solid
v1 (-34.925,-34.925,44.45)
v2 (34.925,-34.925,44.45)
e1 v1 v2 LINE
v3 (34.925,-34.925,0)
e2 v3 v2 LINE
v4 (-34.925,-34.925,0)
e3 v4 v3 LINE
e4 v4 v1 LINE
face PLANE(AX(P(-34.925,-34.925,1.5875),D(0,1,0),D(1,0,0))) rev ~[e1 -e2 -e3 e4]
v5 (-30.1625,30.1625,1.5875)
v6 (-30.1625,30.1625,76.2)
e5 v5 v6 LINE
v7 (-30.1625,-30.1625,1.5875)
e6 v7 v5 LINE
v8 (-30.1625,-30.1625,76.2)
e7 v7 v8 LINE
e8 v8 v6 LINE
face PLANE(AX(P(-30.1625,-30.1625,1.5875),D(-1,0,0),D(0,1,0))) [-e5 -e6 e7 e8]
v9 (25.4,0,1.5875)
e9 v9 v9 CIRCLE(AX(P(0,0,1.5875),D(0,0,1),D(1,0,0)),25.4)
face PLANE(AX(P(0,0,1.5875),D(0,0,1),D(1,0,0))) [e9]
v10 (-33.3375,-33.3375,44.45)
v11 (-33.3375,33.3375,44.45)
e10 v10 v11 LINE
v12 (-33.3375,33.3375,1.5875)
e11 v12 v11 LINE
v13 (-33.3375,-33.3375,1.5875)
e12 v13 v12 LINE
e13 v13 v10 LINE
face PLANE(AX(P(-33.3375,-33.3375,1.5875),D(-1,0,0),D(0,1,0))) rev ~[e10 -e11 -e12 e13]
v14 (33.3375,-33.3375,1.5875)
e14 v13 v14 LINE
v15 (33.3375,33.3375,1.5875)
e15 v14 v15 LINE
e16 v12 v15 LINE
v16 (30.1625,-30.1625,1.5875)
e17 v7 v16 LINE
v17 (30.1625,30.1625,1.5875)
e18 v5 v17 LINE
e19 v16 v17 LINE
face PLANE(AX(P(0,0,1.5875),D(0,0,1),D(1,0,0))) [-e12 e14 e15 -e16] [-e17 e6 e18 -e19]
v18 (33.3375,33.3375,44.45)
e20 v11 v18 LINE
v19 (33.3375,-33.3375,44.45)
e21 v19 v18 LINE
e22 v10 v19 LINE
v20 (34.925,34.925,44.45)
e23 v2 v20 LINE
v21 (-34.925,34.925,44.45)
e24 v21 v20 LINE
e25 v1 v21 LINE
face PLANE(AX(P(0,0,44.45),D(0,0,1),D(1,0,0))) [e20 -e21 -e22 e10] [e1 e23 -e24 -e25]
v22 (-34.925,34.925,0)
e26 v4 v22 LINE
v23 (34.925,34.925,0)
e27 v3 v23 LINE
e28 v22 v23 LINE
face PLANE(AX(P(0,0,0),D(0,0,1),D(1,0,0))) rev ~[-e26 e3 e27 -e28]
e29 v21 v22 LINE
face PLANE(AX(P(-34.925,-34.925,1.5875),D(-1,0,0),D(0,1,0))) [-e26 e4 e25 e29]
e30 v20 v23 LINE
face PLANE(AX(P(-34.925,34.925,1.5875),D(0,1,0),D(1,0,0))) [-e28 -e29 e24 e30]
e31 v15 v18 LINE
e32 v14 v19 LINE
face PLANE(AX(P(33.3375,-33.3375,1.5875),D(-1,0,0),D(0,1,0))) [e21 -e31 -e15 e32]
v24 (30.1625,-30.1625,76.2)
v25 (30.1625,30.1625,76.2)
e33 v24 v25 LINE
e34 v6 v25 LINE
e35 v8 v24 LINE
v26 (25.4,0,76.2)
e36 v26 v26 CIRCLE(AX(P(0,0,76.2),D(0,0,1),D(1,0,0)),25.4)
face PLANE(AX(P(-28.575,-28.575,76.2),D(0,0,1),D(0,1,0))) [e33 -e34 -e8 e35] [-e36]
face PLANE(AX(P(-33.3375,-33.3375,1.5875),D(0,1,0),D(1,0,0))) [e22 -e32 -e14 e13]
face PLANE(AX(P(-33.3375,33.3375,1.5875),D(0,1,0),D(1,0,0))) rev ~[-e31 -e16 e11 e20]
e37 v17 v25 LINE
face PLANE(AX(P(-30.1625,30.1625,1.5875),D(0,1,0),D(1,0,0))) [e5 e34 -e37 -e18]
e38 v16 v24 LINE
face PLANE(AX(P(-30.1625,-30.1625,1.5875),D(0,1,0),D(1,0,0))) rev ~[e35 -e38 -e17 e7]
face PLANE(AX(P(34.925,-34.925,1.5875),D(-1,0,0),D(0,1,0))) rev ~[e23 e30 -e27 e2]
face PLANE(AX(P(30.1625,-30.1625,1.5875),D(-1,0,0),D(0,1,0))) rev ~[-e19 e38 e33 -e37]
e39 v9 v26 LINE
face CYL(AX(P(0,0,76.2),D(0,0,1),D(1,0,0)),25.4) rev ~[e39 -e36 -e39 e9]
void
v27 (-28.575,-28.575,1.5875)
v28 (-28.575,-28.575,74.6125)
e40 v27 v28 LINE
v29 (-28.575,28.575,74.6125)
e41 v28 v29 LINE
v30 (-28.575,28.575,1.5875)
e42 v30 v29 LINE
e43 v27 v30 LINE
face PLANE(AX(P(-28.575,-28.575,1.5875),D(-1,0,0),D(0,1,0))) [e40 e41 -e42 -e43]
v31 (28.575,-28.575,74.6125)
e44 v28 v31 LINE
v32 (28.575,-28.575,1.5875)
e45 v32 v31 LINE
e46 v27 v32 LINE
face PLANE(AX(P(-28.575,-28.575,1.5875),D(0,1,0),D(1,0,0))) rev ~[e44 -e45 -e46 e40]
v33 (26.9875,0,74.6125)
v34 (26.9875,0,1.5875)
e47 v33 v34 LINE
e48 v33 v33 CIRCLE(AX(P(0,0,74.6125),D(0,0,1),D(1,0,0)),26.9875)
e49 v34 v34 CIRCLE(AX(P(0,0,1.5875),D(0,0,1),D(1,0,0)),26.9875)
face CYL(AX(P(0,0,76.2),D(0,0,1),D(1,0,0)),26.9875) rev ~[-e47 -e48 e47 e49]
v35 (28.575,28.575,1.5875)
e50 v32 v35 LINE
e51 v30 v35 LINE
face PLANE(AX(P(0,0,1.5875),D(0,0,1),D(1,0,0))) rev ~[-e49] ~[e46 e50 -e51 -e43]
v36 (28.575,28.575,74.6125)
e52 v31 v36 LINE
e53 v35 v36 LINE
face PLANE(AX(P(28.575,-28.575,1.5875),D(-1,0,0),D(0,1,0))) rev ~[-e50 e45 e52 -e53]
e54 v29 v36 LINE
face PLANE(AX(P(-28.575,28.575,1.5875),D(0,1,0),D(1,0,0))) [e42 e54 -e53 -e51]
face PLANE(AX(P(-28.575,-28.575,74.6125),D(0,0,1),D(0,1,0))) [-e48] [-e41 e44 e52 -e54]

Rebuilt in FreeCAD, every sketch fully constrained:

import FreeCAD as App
import Part
import Sketcher
from FreeCAD import Vector
Q = App.Units.Quantity

doc = App.newDocument("Part")
body = doc.addObject("PartDesign::Body", "Body")

# Sketch on XY plane
sketch1 = body.newObject("Sketcher::SketchObject", "Sketch")
sketch1.AttachmentSupport = (doc.getObject("XY_Plane"), [""])
sketch1.MapMode = "FlatFace"
sketch1.addGeometry(Part.LineSegment(Vector(-35, 35, 0), Vector(-35, -35, 0)), False)
sketch1.addGeometry(Part.LineSegment(Vector(-35, -35, 0), Vector(35, -35, 0)), False)
sketch1.addGeometry(Part.LineSegment(Vector(35, -35, 0), Vector(35, 35, 0)), False)
sketch1.addGeometry(Part.LineSegment(Vector(35, 35, 0), Vector(-35, 35, 0)), False)
sketch1.addConstraint(Sketcher.Constraint("Coincident", 0, 2, 1, 1))
sketch1.addConstraint(Sketcher.Constraint("Coincident", 1, 2, 2, 1))
sketch1.addConstraint(Sketcher.Constraint("Coincident", 2, 2, 3, 1))
sketch1.addConstraint(Sketcher.Constraint("Coincident", 3, 2, 0, 1))
sketch1.addConstraint(Sketcher.Constraint("Vertical", 0))
sketch1.addConstraint(Sketcher.Constraint("Horizontal", 1))
sketch1.addConstraint(Sketcher.Constraint("Vertical", 2))
sketch1.addConstraint(Sketcher.Constraint("Horizontal", 3))
sketch1.addConstraint(Sketcher.Constraint("Symmetric", 0, 2, 2, 2, -1, 1))
sketch1.addConstraint(Sketcher.Constraint("Equal", 3, 0))
sketch1.addConstraint(Sketcher.Constraint("DistanceX", 1, 1, 1, 2, Q("2.75 in")))
pad1 = body.newObject("PartDesign::Pad", "Pad")
pad1.Profile = sketch1
pad1.Length = Q("0.0625 in")

# Sketch on XY plane
sketch2 = body.newObject("Sketcher::SketchObject", "Sketch001")
sketch2.AttachmentSupport = (doc.getObject("XY_Plane"), [""])
sketch2.MapMode = "FlatFace"
sketch2.AttachmentOffset = App.Placement(Vector(0, 0, 0.0625 * 25.4), App.Rotation())
sketch2.addGeometry(Part.LineSegment(Vector(-35, 35, 0), Vector(-35, -35, 0)), False)
sketch2.addGeometry(Part.LineSegment(Vector(-35, -35, 0), Vector(35, -35, 0)), False)
sketch2.addGeometry(Part.LineSegment(Vector(35, -35, 0), Vector(35, 35, 0)), False)
sketch2.addGeometry(Part.LineSegment(Vector(35, 35, 0), Vector(-35, 35, 0)), False)
sketch2.addGeometry(Part.LineSegment(Vector(33, -33, 0), Vector(-33, -33, 0)), False)
sketch2.addGeometry(Part.LineSegment(Vector(-33, -33, 0), Vector(-33, 33, 0)), False)
sketch2.addGeometry(Part.LineSegment(Vector(-33, 33, 0), Vector(33, 33, 0)), False)
sketch2.addGeometry(Part.LineSegment(Vector(33, 33, 0), Vector(33, -33, 0)), False)
sketch2.addConstraint(Sketcher.Constraint("Coincident", 0, 2, 1, 1))
sketch2.addConstraint(Sketcher.Constraint("Coincident", 1, 2, 2, 1))
sketch2.addConstraint(Sketcher.Constraint("Coincident", 2, 2, 3, 1))
sketch2.addConstraint(Sketcher.Constraint("Coincident", 3, 2, 0, 1))
sketch2.addConstraint(Sketcher.Constraint("Coincident", 4, 2, 5, 1))
sketch2.addConstraint(Sketcher.Constraint("Coincident", 5, 2, 6, 1))
sketch2.addConstraint(Sketcher.Constraint("Coincident", 6, 2, 7, 1))
sketch2.addConstraint(Sketcher.Constraint("Coincident", 7, 2, 4, 1))
sketch2.addConstraint(Sketcher.Constraint("Vertical", 0))
sketch2.addConstraint(Sketcher.Constraint("Horizontal", 1))
sketch2.addConstraint(Sketcher.Constraint("Vertical", 2))
sketch2.addConstraint(Sketcher.Constraint("Horizontal", 3))
sketch2.addConstraint(Sketcher.Constraint("Horizontal", 4))
sketch2.addConstraint(Sketcher.Constraint("Vertical", 5))
sketch2.addConstraint(Sketcher.Constraint("Horizontal", 6))
sketch2.addConstraint(Sketcher.Constraint("Vertical", 7))
sketch2.addConstraint(Sketcher.Constraint("Symmetric", 0, 2, 2, 2, -1, 1))
sketch2.addConstraint(Sketcher.Constraint("Symmetric", 4, 2, 6, 2, -1, 1))
sketch2.addConstraint(Sketcher.Constraint("Equal", 3, 0))
sketch2.addConstraint(Sketcher.Constraint("Equal", 6, 5))
sketch2.addConstraint(Sketcher.Constraint("DistanceX", 1, 1, 1, 2, Q("2.75 in")))
sketch2.addConstraint(Sketcher.Constraint("DistanceX", 4, 2, 4, 1, Q("2.625 in")))
pad2 = body.newObject("PartDesign::Pad", "Pad001")
pad2.Profile = sketch2
pad2.Length = Q("1.6875 in")

# Sketch on XY plane
sketch3 = body.newObject("Sketcher::SketchObject", "Sketch002")
sketch3.AttachmentSupport = (doc.getObject("XY_Plane"), [""])
sketch3.MapMode = "FlatFace"
sketch3.AttachmentOffset = App.Placement(Vector(0, 0, 0.0625 * 25.4), App.Rotation())
sketch3.addGeometry(Part.LineSegment(Vector(-30, 30, 0), Vector(-30, -30, 0)), False)
sketch3.addGeometry(Part.LineSegment(Vector(-30, -30, 0), Vector(30, -30, 0)), False)
sketch3.addGeometry(Part.LineSegment(Vector(30, -30, 0), Vector(30, 30, 0)), False)
sketch3.addGeometry(Part.LineSegment(Vector(30, 30, 0), Vector(-30, 30, 0)), False)
sketch3.addGeometry(Part.LineSegment(Vector(29, -29, 0), Vector(-29, -29, 0)), False)
sketch3.addGeometry(Part.LineSegment(Vector(-29, -29, 0), Vector(-29, 29, 0)), False)
sketch3.addGeometry(Part.LineSegment(Vector(-29, 29, 0), Vector(29, 29, 0)), False)
sketch3.addGeometry(Part.LineSegment(Vector(29, 29, 0), Vector(29, -29, 0)), False)
sketch3.addConstraint(Sketcher.Constraint("Coincident", 0, 2, 1, 1))
sketch3.addConstraint(Sketcher.Constraint("Coincident", 1, 2, 2, 1))
sketch3.addConstraint(Sketcher.Constraint("Coincident", 2, 2, 3, 1))
sketch3.addConstraint(Sketcher.Constraint("Coincident", 3, 2, 0, 1))
sketch3.addConstraint(Sketcher.Constraint("Coincident", 4, 2, 5, 1))
sketch3.addConstraint(Sketcher.Constraint("Coincident", 5, 2, 6, 1))
sketch3.addConstraint(Sketcher.Constraint("Coincident", 6, 2, 7, 1))
sketch3.addConstraint(Sketcher.Constraint("Coincident", 7, 2, 4, 1))
sketch3.addConstraint(Sketcher.Constraint("Vertical", 0))
sketch3.addConstraint(Sketcher.Constraint("Horizontal", 1))
sketch3.addConstraint(Sketcher.Constraint("Vertical", 2))
sketch3.addConstraint(Sketcher.Constraint("Horizontal", 3))
sketch3.addConstraint(Sketcher.Constraint("Horizontal", 4))
sketch3.addConstraint(Sketcher.Constraint("Vertical", 5))
sketch3.addConstraint(Sketcher.Constraint("Horizontal", 6))
sketch3.addConstraint(Sketcher.Constraint("Vertical", 7))
sketch3.addConstraint(Sketcher.Constraint("Symmetric", 0, 2, 2, 2, -1, 1))
sketch3.addConstraint(Sketcher.Constraint("Symmetric", 4, 2, 6, 2, -1, 1))
sketch3.addConstraint(Sketcher.Constraint("Equal", 3, 0))
sketch3.addConstraint(Sketcher.Constraint("Equal", 6, 5))
sketch3.addConstraint(Sketcher.Constraint("DistanceX", 4, 2, 4, 1, Q("2.25 in")))
sketch3.addConstraint(Sketcher.Constraint("DistanceX", 1, 1, 1, 2, Q("2.375 in")))
pad3 = body.newObject("PartDesign::Pad", "Pad002")
pad3.Profile = sketch3
pad3.Length = Q("2.9375 in")

# Sketch on YZ plane
sketch4 = body.newObject("Sketcher::SketchObject", "Sketch003")
sketch4.AttachmentSupport = (doc.getObject("YZ_Plane"), [""])
sketch4.MapMode = "FlatFace"
sketch4.AttachmentOffset = App.Placement(Vector(0, 0, -1.125 * 25.4), App.Rotation())
sketch4.addGeometry(Part.LineSegment(Vector(-28.6, 76.2, 0), Vector(-28.6, 74.6, 0)), False)
sketch4.addGeometry(Part.LineSegment(Vector(-28.6, 74.6, 0), Vector(28.6, 74.6, 0)), False)
sketch4.addGeometry(Part.LineSegment(Vector(28.6, 74.6, 0), Vector(28.6, 76.2, 0)), False)
sketch4.addGeometry(Part.LineSegment(Vector(28.6, 76.2, 0), Vector(-28.6, 76.2, 0)), False)
sketch4.addConstraint(Sketcher.Constraint("Coincident", 0, 2, 1, 1))
sketch4.addConstraint(Sketcher.Constraint("Coincident", 1, 2, 2, 1))
sketch4.addConstraint(Sketcher.Constraint("Coincident", 2, 2, 3, 1))
sketch4.addConstraint(Sketcher.Constraint("Coincident", 3, 2, 0, 1))
sketch4.addConstraint(Sketcher.Constraint("Vertical", 0))
sketch4.addConstraint(Sketcher.Constraint("Horizontal", 1))
sketch4.addConstraint(Sketcher.Constraint("Vertical", 2))
sketch4.addConstraint(Sketcher.Constraint("Horizontal", 3))
sketch4.addConstraint(Sketcher.Constraint("DistanceY", -1, 1, 2, 2, Q("3 in")))
sketch4.addConstraint(Sketcher.Constraint("DistanceX", 1, 1, 1, 2, Q("2.25 in")))
sketch4.addConstraint(Sketcher.Constraint("DistanceY", 0, 2, 0, 1, Q("0.0625 in")))
sketch4.addConstraint(Sketcher.Constraint("DistanceX", 0, 2, -1, 1, Q("1.125 in")))
pad4 = body.newObject("PartDesign::Pad", "Pad003")
pad4.Profile = sketch4
pad4.Length = Q("2.3125 in")

# Sketch on XY plane
sketch5 = body.newObject("Sketcher::SketchObject", "Sketch004")
sketch5.AttachmentSupport = (doc.getObject("XY_Plane"), [""])
sketch5.MapMode = "FlatFace"
sketch5.AttachmentOffset = App.Placement(Vector(0, 0, 3 * 25.4), App.Rotation())
sketch5.addGeometry(Part.Circle(Vector(0, 0, 0), Vector(0, 0, 1), 25), False)
sketch5.addConstraint(Sketcher.Constraint("Coincident", 0, 3, -1, 1))
sketch5.addConstraint(Sketcher.Constraint("Diameter", 0, Q("2 in")))
pocket1 = body.newObject("PartDesign::Pocket", "Pocket")
pocket1.Profile = sketch5
pocket1.Length = Q("2.9375 in")

# Sketch on XY plane
sketch6 = body.newObject("Sketcher::SketchObject", "Sketch005")
sketch6.AttachmentSupport = (doc.getObject("XY_Plane"), [""])
sketch6.MapMode = "FlatFace"
sketch6.AttachmentOffset = App.Placement(Vector(0, 0, 3 * 25.4), App.Rotation())
sketch6.addGeometry(Part.Circle(Vector(0, 0, 0), Vector(0, 0, 1), 27), False)
sketch6.addGeometry(Part.Circle(Vector(0, 0, 0), Vector(0, 0, 1), 25), False)
sketch6.addConstraint(Sketcher.Constraint("Coincident", 0, 3, -1, 1))
sketch6.addConstraint(Sketcher.Constraint("Coincident", 1, 3, -1, 1))
sketch6.addConstraint(Sketcher.Constraint("Diameter", 1, Q("2 in")))
sketch6.addConstraint(Sketcher.Constraint("Diameter", 0, Q("2.125 in")))
pad5 = body.newObject("PartDesign::Pad", "Pad004")
pad5.Profile = sketch6
pad5.Length = Q("3 in")
pad5.Reversed = True

doc.recompute()
